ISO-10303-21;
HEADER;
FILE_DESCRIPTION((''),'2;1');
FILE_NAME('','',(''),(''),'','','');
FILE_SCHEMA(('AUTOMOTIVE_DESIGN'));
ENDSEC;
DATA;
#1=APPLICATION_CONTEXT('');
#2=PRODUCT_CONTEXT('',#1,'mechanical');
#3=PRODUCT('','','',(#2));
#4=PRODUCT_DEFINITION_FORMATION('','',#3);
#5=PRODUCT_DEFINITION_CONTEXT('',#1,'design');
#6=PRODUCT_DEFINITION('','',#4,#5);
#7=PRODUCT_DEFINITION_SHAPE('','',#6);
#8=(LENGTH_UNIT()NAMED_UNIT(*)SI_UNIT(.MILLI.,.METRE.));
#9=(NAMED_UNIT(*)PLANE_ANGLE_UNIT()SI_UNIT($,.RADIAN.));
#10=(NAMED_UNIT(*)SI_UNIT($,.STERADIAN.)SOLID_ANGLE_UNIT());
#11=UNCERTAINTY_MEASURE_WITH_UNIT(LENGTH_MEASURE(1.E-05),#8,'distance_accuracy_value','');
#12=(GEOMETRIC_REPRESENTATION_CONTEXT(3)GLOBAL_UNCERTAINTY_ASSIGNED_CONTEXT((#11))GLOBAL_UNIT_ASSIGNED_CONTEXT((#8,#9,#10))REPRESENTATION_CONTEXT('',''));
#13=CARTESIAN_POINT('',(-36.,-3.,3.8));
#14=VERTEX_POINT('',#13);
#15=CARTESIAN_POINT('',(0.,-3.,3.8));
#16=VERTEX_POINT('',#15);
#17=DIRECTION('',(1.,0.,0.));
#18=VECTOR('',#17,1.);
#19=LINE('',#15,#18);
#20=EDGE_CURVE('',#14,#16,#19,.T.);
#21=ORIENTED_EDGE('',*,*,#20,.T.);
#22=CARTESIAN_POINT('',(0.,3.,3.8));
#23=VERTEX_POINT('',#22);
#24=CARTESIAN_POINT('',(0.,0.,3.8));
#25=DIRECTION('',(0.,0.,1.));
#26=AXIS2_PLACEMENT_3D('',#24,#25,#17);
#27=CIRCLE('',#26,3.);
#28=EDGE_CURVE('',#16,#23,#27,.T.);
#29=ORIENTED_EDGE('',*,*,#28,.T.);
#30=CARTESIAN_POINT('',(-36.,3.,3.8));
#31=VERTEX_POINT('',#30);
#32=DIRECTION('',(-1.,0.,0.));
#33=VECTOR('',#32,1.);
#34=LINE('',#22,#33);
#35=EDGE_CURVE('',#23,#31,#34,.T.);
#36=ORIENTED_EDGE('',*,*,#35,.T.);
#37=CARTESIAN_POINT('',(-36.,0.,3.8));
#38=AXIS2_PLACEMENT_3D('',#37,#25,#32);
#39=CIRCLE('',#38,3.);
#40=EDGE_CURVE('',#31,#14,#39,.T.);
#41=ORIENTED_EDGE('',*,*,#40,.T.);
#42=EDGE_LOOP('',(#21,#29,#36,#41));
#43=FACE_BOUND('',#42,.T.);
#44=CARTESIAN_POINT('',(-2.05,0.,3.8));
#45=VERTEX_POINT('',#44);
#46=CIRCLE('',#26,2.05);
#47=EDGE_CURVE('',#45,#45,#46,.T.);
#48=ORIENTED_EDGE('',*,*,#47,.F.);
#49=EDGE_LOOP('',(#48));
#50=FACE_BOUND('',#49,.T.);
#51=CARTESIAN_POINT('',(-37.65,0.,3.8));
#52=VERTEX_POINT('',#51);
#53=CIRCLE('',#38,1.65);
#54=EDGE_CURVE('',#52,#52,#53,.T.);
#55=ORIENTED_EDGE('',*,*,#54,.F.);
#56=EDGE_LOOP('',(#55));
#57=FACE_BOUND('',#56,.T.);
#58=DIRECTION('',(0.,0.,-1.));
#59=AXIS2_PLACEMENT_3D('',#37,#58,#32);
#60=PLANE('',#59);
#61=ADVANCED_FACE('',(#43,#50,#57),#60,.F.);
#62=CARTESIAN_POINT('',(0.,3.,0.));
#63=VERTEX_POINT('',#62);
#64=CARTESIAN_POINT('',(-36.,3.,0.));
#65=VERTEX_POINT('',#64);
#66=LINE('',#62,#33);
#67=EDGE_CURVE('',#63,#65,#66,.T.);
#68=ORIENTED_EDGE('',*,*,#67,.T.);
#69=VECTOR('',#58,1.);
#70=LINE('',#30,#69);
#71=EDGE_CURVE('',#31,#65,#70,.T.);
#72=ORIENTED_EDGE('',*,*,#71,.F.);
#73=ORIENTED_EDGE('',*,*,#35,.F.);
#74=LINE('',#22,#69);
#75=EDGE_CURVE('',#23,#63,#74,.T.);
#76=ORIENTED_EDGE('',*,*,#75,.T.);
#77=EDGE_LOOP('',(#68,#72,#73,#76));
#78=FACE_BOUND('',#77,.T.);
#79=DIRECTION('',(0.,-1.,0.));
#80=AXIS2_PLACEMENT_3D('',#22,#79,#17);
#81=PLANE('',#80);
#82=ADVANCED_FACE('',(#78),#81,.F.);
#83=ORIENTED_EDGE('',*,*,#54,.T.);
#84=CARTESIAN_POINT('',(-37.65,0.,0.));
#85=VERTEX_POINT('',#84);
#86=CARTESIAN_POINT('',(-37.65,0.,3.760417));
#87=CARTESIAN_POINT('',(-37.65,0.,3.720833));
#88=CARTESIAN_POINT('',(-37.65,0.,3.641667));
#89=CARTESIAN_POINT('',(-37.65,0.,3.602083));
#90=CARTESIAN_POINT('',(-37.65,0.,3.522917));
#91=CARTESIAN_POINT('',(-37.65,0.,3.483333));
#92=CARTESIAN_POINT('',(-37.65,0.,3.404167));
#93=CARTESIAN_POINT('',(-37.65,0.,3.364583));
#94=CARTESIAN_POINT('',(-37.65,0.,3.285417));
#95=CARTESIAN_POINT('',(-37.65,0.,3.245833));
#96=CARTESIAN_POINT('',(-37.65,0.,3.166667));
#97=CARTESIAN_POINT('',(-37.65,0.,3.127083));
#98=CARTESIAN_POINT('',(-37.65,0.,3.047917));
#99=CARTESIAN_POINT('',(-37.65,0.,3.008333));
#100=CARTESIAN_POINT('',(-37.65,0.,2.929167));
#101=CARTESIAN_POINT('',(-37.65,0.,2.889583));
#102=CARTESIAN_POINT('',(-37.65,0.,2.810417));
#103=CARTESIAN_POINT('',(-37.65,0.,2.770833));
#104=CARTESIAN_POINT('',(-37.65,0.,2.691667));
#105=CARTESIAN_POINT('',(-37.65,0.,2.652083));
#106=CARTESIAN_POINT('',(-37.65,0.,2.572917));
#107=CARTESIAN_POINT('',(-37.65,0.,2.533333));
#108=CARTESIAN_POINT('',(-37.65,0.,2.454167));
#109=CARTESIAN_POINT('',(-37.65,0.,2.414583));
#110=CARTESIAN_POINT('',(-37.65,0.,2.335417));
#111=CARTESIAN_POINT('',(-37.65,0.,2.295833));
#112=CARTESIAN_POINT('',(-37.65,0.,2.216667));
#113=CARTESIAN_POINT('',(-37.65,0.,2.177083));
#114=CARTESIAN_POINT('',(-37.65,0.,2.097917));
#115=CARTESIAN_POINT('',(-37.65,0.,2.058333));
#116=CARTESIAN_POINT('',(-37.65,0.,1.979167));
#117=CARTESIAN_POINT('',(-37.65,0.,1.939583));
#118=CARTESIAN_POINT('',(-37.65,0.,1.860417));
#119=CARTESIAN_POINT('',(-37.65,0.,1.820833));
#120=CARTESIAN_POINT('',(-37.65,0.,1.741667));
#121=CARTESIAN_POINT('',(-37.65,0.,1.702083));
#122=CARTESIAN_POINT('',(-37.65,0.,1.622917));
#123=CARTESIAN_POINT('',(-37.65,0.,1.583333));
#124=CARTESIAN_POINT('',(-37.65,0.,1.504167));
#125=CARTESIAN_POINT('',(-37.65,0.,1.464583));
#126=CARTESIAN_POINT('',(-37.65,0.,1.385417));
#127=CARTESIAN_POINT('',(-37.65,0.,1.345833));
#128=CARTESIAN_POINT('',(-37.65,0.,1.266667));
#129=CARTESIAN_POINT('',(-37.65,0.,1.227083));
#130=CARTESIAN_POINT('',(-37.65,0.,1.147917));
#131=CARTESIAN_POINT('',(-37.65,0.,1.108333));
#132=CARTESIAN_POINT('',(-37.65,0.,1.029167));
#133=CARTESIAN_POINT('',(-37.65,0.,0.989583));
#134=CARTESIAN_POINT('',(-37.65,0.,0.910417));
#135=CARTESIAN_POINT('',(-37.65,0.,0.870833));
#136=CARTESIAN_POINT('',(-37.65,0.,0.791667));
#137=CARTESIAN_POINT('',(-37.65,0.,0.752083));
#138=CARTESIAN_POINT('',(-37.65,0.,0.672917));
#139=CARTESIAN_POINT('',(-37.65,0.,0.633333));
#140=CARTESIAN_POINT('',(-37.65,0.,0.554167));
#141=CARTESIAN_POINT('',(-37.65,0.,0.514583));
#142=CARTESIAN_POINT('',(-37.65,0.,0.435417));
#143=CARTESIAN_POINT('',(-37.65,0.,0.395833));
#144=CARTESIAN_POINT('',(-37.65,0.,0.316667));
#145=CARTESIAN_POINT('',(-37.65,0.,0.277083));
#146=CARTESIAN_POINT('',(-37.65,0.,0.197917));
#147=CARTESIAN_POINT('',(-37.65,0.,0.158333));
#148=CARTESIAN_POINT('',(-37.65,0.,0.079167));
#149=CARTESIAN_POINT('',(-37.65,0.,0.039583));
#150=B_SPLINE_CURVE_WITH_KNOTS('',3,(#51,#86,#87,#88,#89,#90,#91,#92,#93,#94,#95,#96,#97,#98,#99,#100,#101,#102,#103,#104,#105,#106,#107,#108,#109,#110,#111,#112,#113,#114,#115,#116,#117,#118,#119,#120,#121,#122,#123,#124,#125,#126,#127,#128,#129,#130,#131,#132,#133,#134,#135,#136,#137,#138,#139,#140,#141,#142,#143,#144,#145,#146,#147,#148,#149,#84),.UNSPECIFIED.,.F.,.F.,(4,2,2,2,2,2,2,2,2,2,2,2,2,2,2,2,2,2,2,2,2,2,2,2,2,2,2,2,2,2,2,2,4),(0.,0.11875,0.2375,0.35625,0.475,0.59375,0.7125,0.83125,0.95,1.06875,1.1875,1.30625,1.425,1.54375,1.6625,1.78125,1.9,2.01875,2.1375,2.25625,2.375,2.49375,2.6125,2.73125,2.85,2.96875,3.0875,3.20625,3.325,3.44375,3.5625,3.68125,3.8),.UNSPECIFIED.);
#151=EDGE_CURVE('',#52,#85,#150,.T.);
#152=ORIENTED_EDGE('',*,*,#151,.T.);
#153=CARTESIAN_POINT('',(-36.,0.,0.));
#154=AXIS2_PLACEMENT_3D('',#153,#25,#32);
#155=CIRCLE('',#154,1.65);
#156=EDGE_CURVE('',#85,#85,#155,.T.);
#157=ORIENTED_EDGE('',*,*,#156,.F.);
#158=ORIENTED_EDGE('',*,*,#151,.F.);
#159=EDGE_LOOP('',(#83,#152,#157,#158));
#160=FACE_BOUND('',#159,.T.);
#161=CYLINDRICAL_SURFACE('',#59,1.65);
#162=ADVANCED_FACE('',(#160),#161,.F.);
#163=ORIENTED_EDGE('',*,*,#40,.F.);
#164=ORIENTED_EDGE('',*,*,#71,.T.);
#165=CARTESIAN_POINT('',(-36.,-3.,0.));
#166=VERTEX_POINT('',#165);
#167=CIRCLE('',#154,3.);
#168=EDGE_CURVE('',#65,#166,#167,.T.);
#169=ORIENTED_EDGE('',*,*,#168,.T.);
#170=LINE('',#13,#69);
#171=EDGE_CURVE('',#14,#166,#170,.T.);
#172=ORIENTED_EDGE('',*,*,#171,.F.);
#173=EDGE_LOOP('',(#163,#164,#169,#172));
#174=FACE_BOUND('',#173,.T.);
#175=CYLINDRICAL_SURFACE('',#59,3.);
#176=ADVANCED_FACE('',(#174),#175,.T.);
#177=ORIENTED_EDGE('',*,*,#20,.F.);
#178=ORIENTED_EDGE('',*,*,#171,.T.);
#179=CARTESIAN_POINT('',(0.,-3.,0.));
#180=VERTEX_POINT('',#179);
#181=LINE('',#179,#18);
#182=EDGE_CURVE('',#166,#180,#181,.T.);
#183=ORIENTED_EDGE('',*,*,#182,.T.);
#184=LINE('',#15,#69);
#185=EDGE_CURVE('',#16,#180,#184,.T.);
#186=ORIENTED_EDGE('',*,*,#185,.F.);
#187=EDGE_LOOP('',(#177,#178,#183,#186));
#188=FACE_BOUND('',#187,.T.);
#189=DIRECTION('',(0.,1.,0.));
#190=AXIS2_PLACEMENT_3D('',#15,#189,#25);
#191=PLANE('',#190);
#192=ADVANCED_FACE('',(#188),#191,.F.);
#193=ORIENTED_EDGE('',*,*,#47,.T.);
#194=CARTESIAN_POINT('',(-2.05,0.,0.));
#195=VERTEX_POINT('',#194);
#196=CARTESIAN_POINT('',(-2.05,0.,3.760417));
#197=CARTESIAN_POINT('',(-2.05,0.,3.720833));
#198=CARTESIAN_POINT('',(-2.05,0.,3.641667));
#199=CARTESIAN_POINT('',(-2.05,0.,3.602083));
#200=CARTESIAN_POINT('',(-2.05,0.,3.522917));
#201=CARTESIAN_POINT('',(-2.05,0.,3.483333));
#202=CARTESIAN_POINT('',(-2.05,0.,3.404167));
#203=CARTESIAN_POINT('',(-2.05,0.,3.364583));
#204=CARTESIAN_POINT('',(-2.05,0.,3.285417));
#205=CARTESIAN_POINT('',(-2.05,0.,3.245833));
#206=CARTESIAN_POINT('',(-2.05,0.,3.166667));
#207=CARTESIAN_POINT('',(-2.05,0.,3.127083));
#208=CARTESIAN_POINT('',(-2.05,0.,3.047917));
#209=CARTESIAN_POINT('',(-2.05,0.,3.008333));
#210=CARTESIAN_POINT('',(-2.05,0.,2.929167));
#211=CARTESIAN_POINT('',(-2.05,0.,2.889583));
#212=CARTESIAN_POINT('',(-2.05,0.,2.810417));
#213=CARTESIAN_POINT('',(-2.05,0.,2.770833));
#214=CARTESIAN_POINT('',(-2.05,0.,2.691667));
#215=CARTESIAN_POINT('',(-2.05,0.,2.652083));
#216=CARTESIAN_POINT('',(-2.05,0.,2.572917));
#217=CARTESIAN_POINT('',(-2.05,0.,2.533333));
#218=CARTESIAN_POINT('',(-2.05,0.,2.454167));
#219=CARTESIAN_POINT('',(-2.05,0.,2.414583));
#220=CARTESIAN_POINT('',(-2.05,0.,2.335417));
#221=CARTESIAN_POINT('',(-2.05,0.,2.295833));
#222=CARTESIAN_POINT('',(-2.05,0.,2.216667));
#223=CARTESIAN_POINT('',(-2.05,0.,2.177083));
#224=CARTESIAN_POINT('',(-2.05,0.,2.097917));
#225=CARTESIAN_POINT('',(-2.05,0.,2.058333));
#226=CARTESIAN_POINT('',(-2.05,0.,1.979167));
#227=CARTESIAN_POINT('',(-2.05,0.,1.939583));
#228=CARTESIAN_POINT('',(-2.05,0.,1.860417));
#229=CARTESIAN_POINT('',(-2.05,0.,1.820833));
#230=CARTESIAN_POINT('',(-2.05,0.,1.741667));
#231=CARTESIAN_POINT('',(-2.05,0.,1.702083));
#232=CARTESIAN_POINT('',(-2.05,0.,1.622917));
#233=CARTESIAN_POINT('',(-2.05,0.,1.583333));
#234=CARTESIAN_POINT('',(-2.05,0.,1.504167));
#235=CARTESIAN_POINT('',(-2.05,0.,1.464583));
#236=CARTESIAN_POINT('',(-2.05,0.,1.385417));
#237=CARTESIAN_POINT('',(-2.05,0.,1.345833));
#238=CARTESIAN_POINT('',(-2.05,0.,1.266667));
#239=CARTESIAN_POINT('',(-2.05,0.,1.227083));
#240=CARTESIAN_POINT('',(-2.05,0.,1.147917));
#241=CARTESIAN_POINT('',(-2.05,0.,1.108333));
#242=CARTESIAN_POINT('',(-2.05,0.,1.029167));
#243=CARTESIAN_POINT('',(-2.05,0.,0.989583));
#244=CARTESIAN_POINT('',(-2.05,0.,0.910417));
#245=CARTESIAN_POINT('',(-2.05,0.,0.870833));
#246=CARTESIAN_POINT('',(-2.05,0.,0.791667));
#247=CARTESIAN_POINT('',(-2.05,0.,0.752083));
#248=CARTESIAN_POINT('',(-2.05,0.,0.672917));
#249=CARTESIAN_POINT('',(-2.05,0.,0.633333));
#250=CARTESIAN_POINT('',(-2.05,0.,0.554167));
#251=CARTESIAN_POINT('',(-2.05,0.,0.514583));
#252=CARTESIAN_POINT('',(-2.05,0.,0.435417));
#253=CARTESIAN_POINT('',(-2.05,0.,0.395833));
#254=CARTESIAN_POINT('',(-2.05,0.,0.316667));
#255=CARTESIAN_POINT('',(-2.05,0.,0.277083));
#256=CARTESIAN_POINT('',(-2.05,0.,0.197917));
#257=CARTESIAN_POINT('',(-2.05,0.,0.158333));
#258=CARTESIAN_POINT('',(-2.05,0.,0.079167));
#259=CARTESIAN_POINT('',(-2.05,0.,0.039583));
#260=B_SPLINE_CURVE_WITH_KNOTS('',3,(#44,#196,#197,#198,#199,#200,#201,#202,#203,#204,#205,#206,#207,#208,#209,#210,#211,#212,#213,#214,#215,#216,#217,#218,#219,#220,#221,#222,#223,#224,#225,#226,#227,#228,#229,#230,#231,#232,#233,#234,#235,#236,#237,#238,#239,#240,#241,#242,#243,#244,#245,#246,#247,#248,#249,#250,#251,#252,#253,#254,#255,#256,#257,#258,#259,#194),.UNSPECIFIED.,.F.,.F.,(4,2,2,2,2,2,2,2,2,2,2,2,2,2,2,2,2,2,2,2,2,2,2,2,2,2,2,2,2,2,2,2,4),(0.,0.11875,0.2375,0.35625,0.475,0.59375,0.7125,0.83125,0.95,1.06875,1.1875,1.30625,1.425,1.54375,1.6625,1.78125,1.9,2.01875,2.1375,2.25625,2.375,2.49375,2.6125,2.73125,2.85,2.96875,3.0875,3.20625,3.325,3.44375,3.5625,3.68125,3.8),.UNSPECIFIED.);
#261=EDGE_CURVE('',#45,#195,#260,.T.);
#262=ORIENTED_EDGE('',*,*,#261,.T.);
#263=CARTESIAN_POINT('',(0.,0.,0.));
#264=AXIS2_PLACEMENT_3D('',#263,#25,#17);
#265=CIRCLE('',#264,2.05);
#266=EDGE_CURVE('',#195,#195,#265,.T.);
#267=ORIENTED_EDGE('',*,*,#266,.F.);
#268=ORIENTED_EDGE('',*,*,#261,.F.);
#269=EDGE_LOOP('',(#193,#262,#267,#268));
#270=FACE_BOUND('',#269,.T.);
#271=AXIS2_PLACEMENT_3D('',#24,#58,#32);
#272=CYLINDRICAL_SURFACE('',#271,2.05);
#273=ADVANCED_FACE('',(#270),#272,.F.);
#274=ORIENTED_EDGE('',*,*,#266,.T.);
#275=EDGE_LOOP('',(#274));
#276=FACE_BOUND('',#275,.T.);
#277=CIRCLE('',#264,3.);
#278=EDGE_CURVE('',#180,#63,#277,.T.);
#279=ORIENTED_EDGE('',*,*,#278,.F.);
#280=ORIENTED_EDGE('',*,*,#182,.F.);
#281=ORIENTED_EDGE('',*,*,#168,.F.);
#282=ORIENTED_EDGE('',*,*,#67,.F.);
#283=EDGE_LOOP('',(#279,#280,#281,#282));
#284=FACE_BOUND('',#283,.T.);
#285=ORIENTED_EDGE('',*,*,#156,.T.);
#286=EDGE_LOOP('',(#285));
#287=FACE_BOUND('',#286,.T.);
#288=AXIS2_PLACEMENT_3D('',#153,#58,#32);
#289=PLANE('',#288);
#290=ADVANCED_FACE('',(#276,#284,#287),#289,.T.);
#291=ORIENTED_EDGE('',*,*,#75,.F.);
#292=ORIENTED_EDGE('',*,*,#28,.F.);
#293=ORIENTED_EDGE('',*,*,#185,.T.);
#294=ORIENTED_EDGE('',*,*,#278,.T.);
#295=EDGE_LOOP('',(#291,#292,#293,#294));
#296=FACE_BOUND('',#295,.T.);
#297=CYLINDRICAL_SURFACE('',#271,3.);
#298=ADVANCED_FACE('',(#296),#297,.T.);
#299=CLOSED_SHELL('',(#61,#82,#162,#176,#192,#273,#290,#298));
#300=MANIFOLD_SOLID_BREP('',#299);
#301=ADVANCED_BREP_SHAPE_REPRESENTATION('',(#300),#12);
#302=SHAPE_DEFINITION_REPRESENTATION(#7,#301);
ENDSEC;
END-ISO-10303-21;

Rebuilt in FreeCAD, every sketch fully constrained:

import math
import FreeCAD as App
import Part
import Sketcher

V = App.Vector

doc = App.newDocument("Part")
body = doc.addObject("PartDesign::Body", "Body")

# Sketch on XY plane
sketch1 = body.newObject("Sketcher::SketchObject", "Sketch")
sketch1.AttachmentSupport = (doc.getObject("XY_Plane"), [""])
sketch1.MapMode = "FlatFace"
sketch1.addGeometry(Part.LineSegment(V(0, 3, 0), V(-36, 3, 0)), False)
sketch1.addGeometry(Part.ArcOfCircle(Part.Circle(V(-36, 0, 0), V(0, 0, 1), 3), math.radians(90), math.radians(270)), False)
sketch1.addGeometry(Part.LineSegment(V(-36, -3, 0), V(0, -3, 0)), False)
sketch1.addGeometry(Part.ArcOfCircle(Part.Circle(V(0, 0, 0), V(0, 0, 1), 3), math.radians(-90), math.radians(90)), False)
sketch1.addGeometry(Part.Circle(V(-36, 0, 0), V(0, 0, 1), 1.65), False)
sketch1.addGeometry(Part.Circle(V(0, 0, 0), V(0, 0, 1), 2.05), False)
sketch1.addConstraint(Sketcher.Constraint("Tangent", 0, 2, 1, 1))
sketch1.addConstraint(Sketcher.Constraint("Tangent", 1, 2, 2, 1))
sketch1.addConstraint(Sketcher.Constraint("Tangent", 2, 2, 3, 1))
sketch1.addConstraint(Sketcher.Constraint("Tangent", 3, 2, 0, 1))
sketch1.addConstraint(Sketcher.Constraint("Horizontal", 0))
sketch1.addConstraint(Sketcher.Constraint("Horizontal", 2))
sketch1.addConstraint(Sketcher.Constraint("Coincident", 3, 3, -1, 1))
sketch1.addConstraint(Sketcher.Constraint("Coincident", 5, 3, -1, 1))
sketch1.addConstraint(Sketcher.Constraint("Coincident", 4, 3, 1, 3))
sketch1.addConstraint(Sketcher.Constraint("Radius", 1, 3.0))
sketch1.addConstraint(Sketcher.Constraint("Diameter", 4, 3.3))
sketch1.addConstraint(Sketcher.Constraint("Diameter", 5, 4.1))
sketch1.addConstraint(Sketcher.Constraint("DistanceX", 0, 2, 0, 1, 36.0))
pad1 = body.newObject("PartDesign::Pad", "Pad")
pad1.Profile = sketch1
pad1.Length = 3.8

doc.recompute()
